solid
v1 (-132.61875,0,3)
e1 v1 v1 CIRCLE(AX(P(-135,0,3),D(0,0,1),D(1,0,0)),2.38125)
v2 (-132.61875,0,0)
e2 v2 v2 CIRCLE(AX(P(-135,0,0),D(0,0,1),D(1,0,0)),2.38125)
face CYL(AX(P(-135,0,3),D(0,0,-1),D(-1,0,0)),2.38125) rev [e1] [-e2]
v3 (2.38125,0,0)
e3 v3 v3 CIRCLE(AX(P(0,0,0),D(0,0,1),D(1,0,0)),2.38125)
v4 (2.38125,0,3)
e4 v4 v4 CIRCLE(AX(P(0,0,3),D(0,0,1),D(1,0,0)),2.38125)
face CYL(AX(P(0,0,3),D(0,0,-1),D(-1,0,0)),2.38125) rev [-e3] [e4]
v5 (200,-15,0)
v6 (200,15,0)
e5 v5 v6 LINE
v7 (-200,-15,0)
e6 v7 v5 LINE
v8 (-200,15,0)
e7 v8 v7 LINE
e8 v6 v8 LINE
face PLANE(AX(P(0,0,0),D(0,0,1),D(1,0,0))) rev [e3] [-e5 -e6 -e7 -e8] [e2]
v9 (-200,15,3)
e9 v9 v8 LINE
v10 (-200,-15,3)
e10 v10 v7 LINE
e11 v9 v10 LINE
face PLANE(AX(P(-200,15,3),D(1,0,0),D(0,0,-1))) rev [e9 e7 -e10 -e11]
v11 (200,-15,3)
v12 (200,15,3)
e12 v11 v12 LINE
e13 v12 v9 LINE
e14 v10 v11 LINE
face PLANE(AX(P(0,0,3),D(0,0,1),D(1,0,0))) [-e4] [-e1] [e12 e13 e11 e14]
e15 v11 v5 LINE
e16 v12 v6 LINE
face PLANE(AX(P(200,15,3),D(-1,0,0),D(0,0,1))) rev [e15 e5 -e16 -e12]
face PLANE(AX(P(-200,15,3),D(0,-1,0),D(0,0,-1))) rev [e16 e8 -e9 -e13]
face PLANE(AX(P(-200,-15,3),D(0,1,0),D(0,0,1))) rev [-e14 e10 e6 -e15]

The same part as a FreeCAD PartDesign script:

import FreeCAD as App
import Part
import Sketcher
from FreeCAD import Vector

doc = App.newDocument("Part")
body = doc.addObject("PartDesign::Body", "Body")

# Sketch on XY plane
sketch1 = doc.addObject("Sketcher::SketchObject", "Sketch")
body.addObject(sketch1)
sketch1.AttachmentSupport = (doc.XY_Plane, [""])
sketch1.MapMode = "FlatFace"
sketch1.addGeometry(Part.LineSegment(Vector(-200, 15, 0), Vector(-200, -15, 0)), False)
sketch1.addGeometry(Part.LineSegment(Vector(-200, -15, 0), Vector(200, -15, 0)), False)
sketch1.addGeometry(Part.LineSegment(Vector(200, -15, 0), Vector(200, 15, 0)), False)
sketch1.addGeometry(Part.LineSegment(Vector(200, 15, 0), Vector(-200, 15, 0)), False)
sketch1.addGeometry(Part.Circle(Vector(0, 0, 0), Vector(0, 0, 1), 2.38125), False)
sketch1.addConstraint(Sketcher.Constraint("Coincident", 0, 2, 1, 1))
sketch1.addConstraint(Sketcher.Constraint("Coincident", 1, 2, 2, 1))
sketch1.addConstraint(Sketcher.Constraint("Coincident", 2, 2, 3, 1))
sketch1.addConstraint(Sketcher.Constraint("Coincident", 3, 2, 0, 1))
sketch1.addConstraint(Sketcher.Constraint("Vertical", 0))
sketch1.addConstraint(Sketcher.Constraint("Horizontal", 1))
sketch1.addConstraint(Sketcher.Constraint("Vertical", 2))
sketch1.addConstraint(Sketcher.Constraint("Horizontal", 3))
sketch1.addConstraint(Sketcher.Constraint("Coincident", 4, 3, -1, 1))
sketch1.addConstraint(Sketcher.Constraint("Symmetric", 0, 2, 2, 2, -1, 1))
sketch1.addConstraint(Sketcher.Constraint("DistanceX", 1, 1, 1, 2, 400.0))
sketch1.addConstraint(Sketcher.Constraint("DistanceY", 0, 2, 0, 1, 30.0))
sketch1.addConstraint(Sketcher.Constraint("Diameter", 4, 4.7625))
pad1 = doc.addObject("PartDesign::Pad", "Pad")
body.addObject(pad1)
pad1.Profile = sketch1
pad1.Length = 3

# Sketch on XY plane
sketch2 = doc.addObject("Sketcher::SketchObject", "Sketch001")
body.addObject(sketch2)
sketch2.AttachmentSupport = (doc.XY_Plane, [""])
sketch2.MapMode = "FlatFace"
sketch2.addGeometry(Part.Circle(Vector(-135, 0, 0), Vector(0, 0, 1), 2.38125), False)
sketch2.addConstraint(Sketcher.Constraint("PointOnObject", 0, 3, -1))
sketch2.addConstraint(Sketcher.Constraint("DistanceX", 0, 3, -1, 1, 135.0))
sketch2.addConstraint(Sketcher.Constraint("Diameter", 0, 4.7625))
pocket1 = doc.addObject("PartDesign::Pocket", "Pocket")
body.addObject(pocket1)
pocket1.Profile = sketch2
pocket1.Type = "ThroughAll"
pocket1.Reversed = True

doc.recompute()
